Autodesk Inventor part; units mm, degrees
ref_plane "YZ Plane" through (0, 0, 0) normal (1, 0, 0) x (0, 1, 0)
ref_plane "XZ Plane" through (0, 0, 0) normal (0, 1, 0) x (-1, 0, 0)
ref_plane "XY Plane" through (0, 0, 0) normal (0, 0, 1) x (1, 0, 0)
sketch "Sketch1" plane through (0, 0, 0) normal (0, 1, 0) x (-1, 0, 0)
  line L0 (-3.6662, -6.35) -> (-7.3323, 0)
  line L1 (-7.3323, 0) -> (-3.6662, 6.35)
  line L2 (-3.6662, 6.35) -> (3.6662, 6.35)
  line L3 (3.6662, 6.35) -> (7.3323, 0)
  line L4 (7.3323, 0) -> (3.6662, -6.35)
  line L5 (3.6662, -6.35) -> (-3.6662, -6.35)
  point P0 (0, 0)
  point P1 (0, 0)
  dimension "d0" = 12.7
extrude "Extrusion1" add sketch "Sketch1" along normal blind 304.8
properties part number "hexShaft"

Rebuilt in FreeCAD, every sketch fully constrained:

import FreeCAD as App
import Part
import Sketcher
from FreeCAD import Vector
Q = App.Units.Quantity

doc = App.newDocument("Part")
params = doc.addObject("Spreadsheet::Sheet", "Params")
for row, (alias, value) in enumerate([
    ("pad1_length", "12 in"),
], start=1):
    params.set(f"A{row}", alias)
    params.set(f"B{row}", "=" + value)
    params.setAlias(f"B{row}", alias)

body = doc.addObject("PartDesign::Body", "Body")

# Sketch on XZ plane
sketch1 = body.newObject("Sketcher::SketchObject", "Sketch")
sketch1.AttachmentSupport = (doc.getObject("XZ_Plane"), [""])
sketch1.MapMode = "FlatFace"
sketch1.addGeometry(Part.LineSegment(Vector(7, 0, 0), Vector(4, -6, 0)), False)
sketch1.addGeometry(Part.LineSegment(Vector(4, -6, 0), Vector(-4, -6, 0)), False)
sketch1.addGeometry(Part.LineSegment(Vector(-4, -6, 0), Vector(-7, 0, 0)), False)
sketch1.addGeometry(Part.LineSegment(Vector(-7, 0, 0), Vector(-4, 6, 0)), False)
sketch1.addGeometry(Part.LineSegment(Vector(-4, 6, 0), Vector(4, 6, 0)), False)
sketch1.addGeometry(Part.LineSegment(Vector(4, 6, 0), Vector(7, 0, 0)), False)
sketch1.addConstraint(Sketcher.Constraint("Coincident", 0, 2, 1, 1))
sketch1.addConstraint(Sketcher.Constraint("Coincident", 1, 2, 2, 1))
sketch1.addConstraint(Sketcher.Constraint("Coincident", 2, 2, 3, 1))
sketch1.addConstraint(Sketcher.Constraint("Coincident", 3, 2, 4, 1))
sketch1.addConstraint(Sketcher.Constraint("Coincident", 4, 2, 5, 1))
sketch1.addConstraint(Sketcher.Constraint("Coincident", 5, 2, 0, 1))
sketch1.addConstraint(Sketcher.Constraint("Horizontal", 1))
sketch1.addConstraint(Sketcher.Constraint("Horizontal", 4))
sketch1.addConstraint(Sketcher.Constraint("Symmetric", 0, 2, 3, 2, -1, 1))
sketch1.addConstraint(Sketcher.Constraint("Symmetric", 2, 2, 5, 2, -1, 1))
sketch1.addConstraint(Sketcher.Constraint("PointOnObject", 2, 2, -1))
sketch1.addConstraint(Sketcher.Constraint("Parallel", 2, 5))
sketch1.addConstraint(Sketcher.Constraint("Vertical", 1, 2, 3, 2))
sketch1.addConstraint(Sketcher.Constraint("DistanceY", 1, 2, 3, 2, Q("0.5 in")))
sketch1.addConstraint(Sketcher.Constraint("Angle", 0, Q("-119.9995 deg")))
sketch1.addConstraint(Sketcher.Constraint("DistanceX", 2, 2, 0, 2, Q("0.433 in")))
pad1 = body.newObject("PartDesign::Pad", "Pad")
pad1.Profile = sketch1
pad1.setExpression("Length", "Params.pad1_length")
pad1.Reversed = True

doc.recompute()
